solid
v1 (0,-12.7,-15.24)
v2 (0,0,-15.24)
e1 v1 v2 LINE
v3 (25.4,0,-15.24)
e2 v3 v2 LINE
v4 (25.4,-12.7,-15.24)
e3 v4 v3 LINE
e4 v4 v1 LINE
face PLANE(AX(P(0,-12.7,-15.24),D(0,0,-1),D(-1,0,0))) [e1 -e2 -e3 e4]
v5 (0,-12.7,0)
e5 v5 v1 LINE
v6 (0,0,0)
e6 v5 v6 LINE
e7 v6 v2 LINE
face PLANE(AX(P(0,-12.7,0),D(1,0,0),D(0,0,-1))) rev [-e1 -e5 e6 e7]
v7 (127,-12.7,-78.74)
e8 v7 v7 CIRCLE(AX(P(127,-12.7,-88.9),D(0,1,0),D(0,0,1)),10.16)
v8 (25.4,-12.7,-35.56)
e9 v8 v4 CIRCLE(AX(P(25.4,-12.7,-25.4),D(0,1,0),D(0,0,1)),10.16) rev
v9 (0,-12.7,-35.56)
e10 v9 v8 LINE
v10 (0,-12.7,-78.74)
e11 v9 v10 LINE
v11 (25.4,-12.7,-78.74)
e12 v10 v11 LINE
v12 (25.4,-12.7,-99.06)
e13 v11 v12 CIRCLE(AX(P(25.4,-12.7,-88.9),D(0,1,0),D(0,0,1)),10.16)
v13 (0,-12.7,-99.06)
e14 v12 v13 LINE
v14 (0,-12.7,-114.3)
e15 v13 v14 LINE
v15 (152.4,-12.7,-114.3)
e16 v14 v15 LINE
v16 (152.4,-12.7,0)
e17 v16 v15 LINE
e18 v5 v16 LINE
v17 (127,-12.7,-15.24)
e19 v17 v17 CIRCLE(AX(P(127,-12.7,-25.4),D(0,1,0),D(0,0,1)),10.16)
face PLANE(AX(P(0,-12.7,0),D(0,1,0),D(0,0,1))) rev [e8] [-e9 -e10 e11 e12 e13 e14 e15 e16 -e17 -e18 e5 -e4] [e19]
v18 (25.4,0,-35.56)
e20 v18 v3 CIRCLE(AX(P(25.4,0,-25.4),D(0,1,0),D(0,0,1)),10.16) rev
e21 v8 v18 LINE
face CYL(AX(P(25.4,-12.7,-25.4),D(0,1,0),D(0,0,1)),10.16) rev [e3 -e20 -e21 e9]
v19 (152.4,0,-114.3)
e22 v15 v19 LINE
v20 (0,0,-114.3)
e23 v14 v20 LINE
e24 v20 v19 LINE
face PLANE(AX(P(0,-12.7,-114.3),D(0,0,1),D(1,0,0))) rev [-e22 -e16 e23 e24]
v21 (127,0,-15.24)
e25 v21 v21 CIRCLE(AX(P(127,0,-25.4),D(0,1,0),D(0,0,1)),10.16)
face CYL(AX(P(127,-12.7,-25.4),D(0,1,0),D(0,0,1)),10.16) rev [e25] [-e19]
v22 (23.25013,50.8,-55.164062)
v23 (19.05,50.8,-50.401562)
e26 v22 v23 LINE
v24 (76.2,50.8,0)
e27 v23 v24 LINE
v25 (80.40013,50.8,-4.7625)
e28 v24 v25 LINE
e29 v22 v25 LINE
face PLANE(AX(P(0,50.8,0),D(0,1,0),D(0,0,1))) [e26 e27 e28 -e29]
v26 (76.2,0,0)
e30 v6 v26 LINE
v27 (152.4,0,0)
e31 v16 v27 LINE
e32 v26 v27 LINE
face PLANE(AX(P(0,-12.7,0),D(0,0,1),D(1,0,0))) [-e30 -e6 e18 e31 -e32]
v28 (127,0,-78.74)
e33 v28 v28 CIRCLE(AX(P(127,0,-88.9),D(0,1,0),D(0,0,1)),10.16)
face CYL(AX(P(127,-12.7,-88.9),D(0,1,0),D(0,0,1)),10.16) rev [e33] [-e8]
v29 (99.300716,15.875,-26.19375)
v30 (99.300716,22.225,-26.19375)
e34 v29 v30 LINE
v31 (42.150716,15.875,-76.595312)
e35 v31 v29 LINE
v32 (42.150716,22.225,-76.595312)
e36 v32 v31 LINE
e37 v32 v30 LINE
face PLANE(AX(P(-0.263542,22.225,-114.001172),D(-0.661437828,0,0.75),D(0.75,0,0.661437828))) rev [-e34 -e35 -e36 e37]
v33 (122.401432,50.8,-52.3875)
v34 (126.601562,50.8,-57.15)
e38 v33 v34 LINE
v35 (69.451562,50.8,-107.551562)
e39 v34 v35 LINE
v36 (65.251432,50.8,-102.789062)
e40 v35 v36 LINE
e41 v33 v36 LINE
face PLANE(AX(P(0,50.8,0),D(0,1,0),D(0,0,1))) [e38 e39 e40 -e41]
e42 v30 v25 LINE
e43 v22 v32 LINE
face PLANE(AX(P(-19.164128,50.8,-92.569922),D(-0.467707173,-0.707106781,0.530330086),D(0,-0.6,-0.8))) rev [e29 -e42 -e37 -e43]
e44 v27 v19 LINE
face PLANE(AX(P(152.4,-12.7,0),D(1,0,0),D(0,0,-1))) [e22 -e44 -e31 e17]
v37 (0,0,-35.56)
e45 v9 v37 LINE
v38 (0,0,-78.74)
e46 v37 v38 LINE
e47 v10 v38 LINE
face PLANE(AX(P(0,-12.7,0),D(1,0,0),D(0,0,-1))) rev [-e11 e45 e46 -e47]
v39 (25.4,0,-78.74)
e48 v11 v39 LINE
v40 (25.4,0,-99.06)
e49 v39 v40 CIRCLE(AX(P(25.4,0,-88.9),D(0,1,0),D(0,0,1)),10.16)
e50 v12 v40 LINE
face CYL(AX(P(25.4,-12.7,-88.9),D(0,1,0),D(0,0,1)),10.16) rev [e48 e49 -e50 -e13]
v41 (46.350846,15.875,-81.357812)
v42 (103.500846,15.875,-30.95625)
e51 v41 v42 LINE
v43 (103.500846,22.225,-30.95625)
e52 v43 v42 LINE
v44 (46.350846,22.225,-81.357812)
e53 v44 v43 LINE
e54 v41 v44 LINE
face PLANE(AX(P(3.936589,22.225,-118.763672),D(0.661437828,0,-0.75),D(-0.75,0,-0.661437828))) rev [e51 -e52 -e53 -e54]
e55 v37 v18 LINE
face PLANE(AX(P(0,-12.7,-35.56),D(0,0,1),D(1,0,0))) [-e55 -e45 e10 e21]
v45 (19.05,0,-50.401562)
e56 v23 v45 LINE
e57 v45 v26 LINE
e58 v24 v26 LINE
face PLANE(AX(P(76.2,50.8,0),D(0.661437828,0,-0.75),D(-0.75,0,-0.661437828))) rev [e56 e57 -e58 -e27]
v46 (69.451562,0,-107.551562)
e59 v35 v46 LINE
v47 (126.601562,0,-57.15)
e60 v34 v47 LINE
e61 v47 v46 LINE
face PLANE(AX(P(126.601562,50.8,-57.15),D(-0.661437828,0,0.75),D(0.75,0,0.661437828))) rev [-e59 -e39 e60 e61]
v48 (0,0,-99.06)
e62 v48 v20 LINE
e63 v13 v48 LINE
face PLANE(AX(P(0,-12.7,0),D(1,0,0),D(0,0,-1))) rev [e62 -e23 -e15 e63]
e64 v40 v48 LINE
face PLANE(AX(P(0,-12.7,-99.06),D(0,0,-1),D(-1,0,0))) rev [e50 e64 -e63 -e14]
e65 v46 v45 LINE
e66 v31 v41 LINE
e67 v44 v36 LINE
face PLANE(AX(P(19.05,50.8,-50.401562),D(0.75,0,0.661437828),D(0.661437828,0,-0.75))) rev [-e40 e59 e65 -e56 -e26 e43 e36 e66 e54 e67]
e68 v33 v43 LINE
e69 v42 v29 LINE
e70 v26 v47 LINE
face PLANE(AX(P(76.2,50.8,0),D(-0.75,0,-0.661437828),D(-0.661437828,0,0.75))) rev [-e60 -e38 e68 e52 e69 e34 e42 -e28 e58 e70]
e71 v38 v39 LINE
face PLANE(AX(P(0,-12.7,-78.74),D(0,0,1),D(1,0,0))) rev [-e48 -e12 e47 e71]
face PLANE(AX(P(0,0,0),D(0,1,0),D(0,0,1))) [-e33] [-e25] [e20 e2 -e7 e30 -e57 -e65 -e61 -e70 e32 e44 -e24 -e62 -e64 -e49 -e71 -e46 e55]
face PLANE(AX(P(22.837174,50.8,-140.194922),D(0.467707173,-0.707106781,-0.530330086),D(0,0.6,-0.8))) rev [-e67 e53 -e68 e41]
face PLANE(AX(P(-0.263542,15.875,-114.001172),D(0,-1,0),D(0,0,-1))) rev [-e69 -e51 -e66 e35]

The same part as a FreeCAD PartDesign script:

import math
import FreeCAD as App
import Part
import Sketcher
from FreeCAD import Vector
Q = App.Units.Quantity


def add_polygon(sketch, points):
    """Adds a closed chain of lines whose ends are joined by coincident constraints."""
    first, n = sketch.GeometryCount, len(points)
    for a, b in zip(points, points[1:] + points[:1]):
        sketch.addGeometry(Part.LineSegment(App.Vector(*a, 0), App.Vector(*b, 0)), False)
    for i in range(n):
        sketch.addConstraint(Sketcher.Constraint("Coincident", first + i, 2, first + (i + 1) % n, 1))

doc = App.newDocument("Part")
body = doc.addObject("PartDesign::Body", "Body")

# Sketch on XZ plane
sketch1 = body.newObject("Sketcher::SketchObject", "Sketch")
sketch1.AttachmentSupport = (doc.getObject("XZ_Plane"), [""])
sketch1.MapMode = "FlatFace"
sketch1.addGeometry([
    Part.LineSegment(Vector(0, -35.56, 0), Vector(25.4, -35.56, 0)),  # 0
    Part.ArcOfCircle(Part.Circle(Vector(25.4, -25.4, 0), Vector(0, 0, 1), 10.16), math.radians(-90), math.radians(90)),  # 1
    Part.LineSegment(Vector(25.4, -15.24, 0), Vector(0, -15.24, 0)),  # 2
    Part.LineSegment(Vector(0, -15.24, 0), Vector(0, 0, 0)),  # 3
    Part.LineSegment(Vector(0, 0, 0), Vector(152.4, 0, 0)),  # 4
    Part.LineSegment(Vector(152.4, 0, 0), Vector(152.4, -114.3, 0)),  # 5
    Part.LineSegment(Vector(152.4, -114.3, 0), Vector(0, -114.3, 0)),  # 6
    Part.LineSegment(Vector(0, -114.3, 0), Vector(0, -99.06, 0)),  # 7
    Part.LineSegment(Vector(0, -99.06, 0), Vector(25.4, -99.06, 0)),  # 8
    Part.ArcOfCircle(Part.Circle(Vector(25.4, -88.9, 0), Vector(0, 0, 1), 10.16), math.radians(-90), math.radians(90)),  # 9
    Part.LineSegment(Vector(25.4, -78.74, 0), Vector(0, -78.74, 0)),  # 10
    Part.LineSegment(Vector(0, -78.74, 0), Vector(0, -35.56, 0)),  # 11
    Part.Circle(Vector(127, -25.4, 0), Vector(0, 0, 1), 10.16),  # 12
    Part.Circle(Vector(127, -88.9, 0), Vector(0, 0, 1), 10.16),  # 13
], False)
sketch1.addConstraint([
    Sketcher.Constraint("Tangent", 0, 2, 1, 1),
    Sketcher.Constraint("Tangent", 1, 2, 2, 1),
    Sketcher.Constraint("Coincident", 2, 2, 3, 1),
    Sketcher.Constraint("Coincident", 3, 2, 4, 1),
    Sketcher.Constraint("Coincident", 4, 2, 5, 1),
    Sketcher.Constraint("Coincident", 5, 2, 6, 1),
    Sketcher.Constraint("Coincident", 6, 2, 7, 1),
    Sketcher.Constraint("Coincident", 7, 2, 8, 1),
    Sketcher.Constraint("Tangent", 8, 2, 9, 1),
    Sketcher.Constraint("Tangent", 9, 2, 10, 1),
    Sketcher.Constraint("Coincident", 10, 2, 11, 1),
    Sketcher.Constraint("Coincident", 11, 2, 0, 1),
    Sketcher.Constraint("Horizontal", 0),
    Sketcher.Constraint("Horizontal", 2),
    Sketcher.Constraint("Vertical", 3),
    Sketcher.Constraint("Horizontal", 4),
    Sketcher.Constraint("Vertical", 5),
    Sketcher.Constraint("Horizontal", 6),
    Sketcher.Constraint("Vertical", 7),
    Sketcher.Constraint("Horizontal", 8),
    Sketcher.Constraint("Horizontal", 10),
    Sketcher.Constraint("Vertical", 11),
    Sketcher.Constraint("Coincident", 3, 2, -1, 1),
    Sketcher.Constraint("Equal", 1, 9),
    Sketcher.Constraint("Equal", 9, 12),
    Sketcher.Constraint("Equal", 12, 13),
    Sketcher.Constraint("PointOnObject", 6, 2, -2),
    Sketcher.Constraint("PointOnObject", 10, 2, -2),
    Sketcher.Constraint("Horizontal", 1, 3, 12, 3),
    Sketcher.Constraint("Horizontal", 9, 3, 13, 3),
    Sketcher.Constraint("Vertical", 1, 3, 9, 3),
    Sketcher.Constraint("Vertical", 12, 3, 13, 3),
    Sketcher.Constraint("Equal", 3, 7),
    Sketcher.Constraint("Diameter", 12, Q("0.8 in")),
    Sketcher.Constraint("DistanceX", 0, 1, 0, 2, Q("1 in")),
    Sketcher.Constraint("DistanceX", 4, 1, 4, 2, Q("6 in")),
    Sketcher.Constraint("DistanceY", 3, 1, 3, 2, Q("0.6 in")),
    Sketcher.Constraint("DistanceY", 5, 2, 5, 1, Q("4.5 in")),
    Sketcher.Constraint("DistanceX", -1, 1, 12, 3, Q("5 in")),
])
pad1 = body.newObject("PartDesign::Pad", "Pad")
pad1.Profile = sketch1
pad1.Length = Q("0.5 in")

# Sketch on XZ plane
sketch2 = body.newObject("Sketcher::SketchObject", "Sketch001")
sketch2.AttachmentSupport = (doc.getObject("XZ_Plane"), [""])
sketch2.MapMode = "FlatFace"
add_polygon(sketch2, [(19.05, -50.401562), (76.2, 0), (126.601562, -57.15), (69.451562, -107.551562)])  # lines 0-3
sketch2.addConstraint([
    Sketcher.Constraint("PointOnObject", 0, 2, -1),
    Sketcher.Constraint("Perpendicular", 0, 1),
    Sketcher.Constraint("Perpendicular", 1, 2),
    Sketcher.Constraint("Perpendicular", 2, 3),
    Sketcher.Constraint("Equal", 0, 1),
    Sketcher.Constraint("Distance", 0, Q("3 in")),
    Sketcher.Constraint("DistanceX", -1, 1, 0, 2, Q("3 in")),
    Sketcher.Constraint("DistanceY", 1, 2, -1, 1, Q("2.25 in")),
])
pad2 = body.newObject("PartDesign::Pad", "Pad001")
pad2.Profile = sketch2
pad2.Length = Q("2 in")
pad2.Reversed = True

# Sketch on an angled plane
sketch3 = body.newObject("Sketcher::SketchObject", "Sketch002")
sketch3.Placement = App.Placement(Vector(42.8625, 0, 37.801172), App.Rotation(Vector(0.661437828, 0, -0.75), Vector(0, 1, 0), Vector(0.75, 0, 0.661437828), "ZXY"))
add_polygon(sketch3, [(56.751562, 50.8), (85.326563, 22.225), (85.326563, 15.875), (91.676563, 15.875), (91.676563, 22.225), (120.251563, 50.8)])  # lines 0-5
sketch3.addConstraint([
    Sketcher.Constraint("Vertical", 1),
    Sketcher.Constraint("Horizontal", 2),
    Sketcher.Constraint("Vertical", 3),
    Sketcher.Constraint("Horizontal", 5),
    Sketcher.Constraint("Perpendicular", 0, 4),
    Sketcher.Constraint("Horizontal", 0, 2, 3, 2),
    Sketcher.Constraint("Equal", 2, 1),
    Sketcher.Constraint("Equal", 0, 4),
    Sketcher.Constraint("DistanceX", 5, 2, 5, 1, Q("2.5 in")),
    Sketcher.Constraint("DistanceY", -1, 1, 4, 2, Q("2 in")),
    Sketcher.Constraint("DistanceX", 2, 1, 2, 2, Q("0.25 in")),
    Sketcher.Constraint("DistanceX", -1, 1, 0, 2, Q("85.326563 mm")),
])
pocket1 = body.newObject("PartDesign::Pocket", "Pocket")
pocket1.Profile = sketch3
pocket1.Type = "ThroughAll"
pocket1.Midplane = True

doc.recompute()
